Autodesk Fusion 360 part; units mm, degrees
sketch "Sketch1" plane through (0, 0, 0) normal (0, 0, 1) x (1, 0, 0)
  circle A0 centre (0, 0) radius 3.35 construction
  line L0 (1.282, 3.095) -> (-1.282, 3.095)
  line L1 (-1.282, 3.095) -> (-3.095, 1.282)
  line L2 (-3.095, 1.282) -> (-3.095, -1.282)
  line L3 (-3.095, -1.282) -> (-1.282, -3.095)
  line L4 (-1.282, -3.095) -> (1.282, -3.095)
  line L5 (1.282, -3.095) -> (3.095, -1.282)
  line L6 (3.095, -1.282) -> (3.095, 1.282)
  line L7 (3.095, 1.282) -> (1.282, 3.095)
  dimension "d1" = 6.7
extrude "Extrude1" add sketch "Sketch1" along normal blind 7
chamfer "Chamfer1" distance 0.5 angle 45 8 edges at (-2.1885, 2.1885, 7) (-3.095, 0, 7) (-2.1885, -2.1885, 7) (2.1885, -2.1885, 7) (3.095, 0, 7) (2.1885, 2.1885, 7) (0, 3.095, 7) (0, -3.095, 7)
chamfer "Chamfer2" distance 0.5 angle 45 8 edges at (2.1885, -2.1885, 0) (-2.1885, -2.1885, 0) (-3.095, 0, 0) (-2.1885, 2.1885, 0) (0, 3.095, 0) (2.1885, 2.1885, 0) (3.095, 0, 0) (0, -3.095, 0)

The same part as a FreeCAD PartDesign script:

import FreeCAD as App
import Part
import Sketcher
Q = App.Units.Quantity


def edges_at(feature, points):
    """Names of the edges that pass closest to the given points."""
    edges = feature.Shape.Edges
    near = lambda p: min(range(len(edges)), key=lambda i: edges[i].distToShape(Part.Vertex(*p))[0])
    return sorted({f"Edge{near(p) + 1}" for p in points})


def add_polygon(sketch, points):
    """Adds a closed chain of lines whose ends are joined by coincident constraints."""
    first, n = sketch.GeometryCount, len(points)
    for a, b in zip(points, points[1:] + points[:1]):
        sketch.addGeometry(Part.LineSegment(App.Vector(*a, 0), App.Vector(*b, 0)), False)
    for i in range(n):
        sketch.addConstraint(Sketcher.Constraint("Coincident", first + i, 2, first + (i + 1) % n, 1))

doc = App.newDocument("Part")
params = doc.addObject("Spreadsheet::Sheet", "Params")
for row, (alias, value) in enumerate([
    ("pad1_length", "7 mm"),
    ("chamfer_size", "0.5 mm"),
    ("chamfer2_size", "0.5 mm"),
], start=1):
    params.set(f"A{row}", alias)
    params.set(f"B{row}", "=" + value)
    params.setAlias(f"B{row}", alias)

body = doc.addObject("PartDesign::Body", "Body")

# Sketch on XY plane
sketch1 = doc.addObject("Sketcher::SketchObject", "Sketch")
body.addObject(sketch1)
sketch1.AttachmentSupport = (doc.XY_Plane, [""])
sketch1.MapMode = "FlatFace"
add_polygon(sketch1, [(3.1, 1.3), (1.3, 3.1), (-1.3, 3.1), (-3.1, 1.3), (-3.1, -1.3), (-1.3, -3.1), (1.3, -3.1), (3.1, -1.3)])  # lines 0-7
sketch1.addConstraint([
    Sketcher.Constraint("Horizontal", 1),
    Sketcher.Constraint("Vertical", 3),
    Sketcher.Constraint("Horizontal", 5),
    Sketcher.Constraint("Vertical", 7),
    Sketcher.Constraint("Symmetric", 0, 2, 4, 2, -1, 1),
    Sketcher.Constraint("Symmetric", 2, 2, 6, 2, -1, 1),
    Sketcher.Constraint("Perpendicular", 0, 2),
    Sketcher.Constraint("Perpendicular", 2, 4),
    Sketcher.Constraint("Perpendicular", 4, 6),
    Sketcher.Constraint("Horizontal", 3, 2, 6, 2),
    Sketcher.Constraint("Vertical", 1, 2, 4, 2),
    Sketcher.Constraint("Equal", 5, 3),
    Sketcher.Constraint("DistanceX", 1, 2, 1, 1, Q("2.564 mm")),
    Sketcher.Constraint("DistanceY", 4, 2, 1, 2, Q("6.19 mm")),
])
pad1 = doc.addObject("PartDesign::Pad", "Pad")
body.addObject(pad1)
pad1.Profile = sketch1
pad1.setExpression("Length", "Params.pad1_length")
doc.recompute()

chamfer = doc.addObject("PartDesign::Chamfer", "Chamfer")
body.addObject(chamfer)
chamfer.Base = (pad1, edges_at(pad1, [
    (-2.188, 2.188, 7),
    (-3.095, 0, 7),
    (-2.188, -2.188, 7),
    (2.188, -2.188, 7),
    (3.095, 0, 7),
    (2.188, 2.188, 7),
    (0, 3.095, 7),
    (0, -3.095, 7),
]))
chamfer.setExpression("Size", "Params.chamfer_size")
doc.recompute()

chamfer2 = doc.addObject("PartDesign::Chamfer", "Chamfer001")
body.addObject(chamfer2)
chamfer2.Base = (chamfer, edges_at(chamfer, [
    (2.188, -2.188, 0),
    (-2.188, -2.188, 0),
    (-3.095, 0, 0),
    (-2.188, 2.188, 0),
    (0, 3.095, 0),
    (2.188, 2.188, 0),
    (3.095, 0, 0),
    (0, -3.095, 0),
]))
chamfer2.setExpression("Size", "Params.chamfer2_size")

doc.recompute()
